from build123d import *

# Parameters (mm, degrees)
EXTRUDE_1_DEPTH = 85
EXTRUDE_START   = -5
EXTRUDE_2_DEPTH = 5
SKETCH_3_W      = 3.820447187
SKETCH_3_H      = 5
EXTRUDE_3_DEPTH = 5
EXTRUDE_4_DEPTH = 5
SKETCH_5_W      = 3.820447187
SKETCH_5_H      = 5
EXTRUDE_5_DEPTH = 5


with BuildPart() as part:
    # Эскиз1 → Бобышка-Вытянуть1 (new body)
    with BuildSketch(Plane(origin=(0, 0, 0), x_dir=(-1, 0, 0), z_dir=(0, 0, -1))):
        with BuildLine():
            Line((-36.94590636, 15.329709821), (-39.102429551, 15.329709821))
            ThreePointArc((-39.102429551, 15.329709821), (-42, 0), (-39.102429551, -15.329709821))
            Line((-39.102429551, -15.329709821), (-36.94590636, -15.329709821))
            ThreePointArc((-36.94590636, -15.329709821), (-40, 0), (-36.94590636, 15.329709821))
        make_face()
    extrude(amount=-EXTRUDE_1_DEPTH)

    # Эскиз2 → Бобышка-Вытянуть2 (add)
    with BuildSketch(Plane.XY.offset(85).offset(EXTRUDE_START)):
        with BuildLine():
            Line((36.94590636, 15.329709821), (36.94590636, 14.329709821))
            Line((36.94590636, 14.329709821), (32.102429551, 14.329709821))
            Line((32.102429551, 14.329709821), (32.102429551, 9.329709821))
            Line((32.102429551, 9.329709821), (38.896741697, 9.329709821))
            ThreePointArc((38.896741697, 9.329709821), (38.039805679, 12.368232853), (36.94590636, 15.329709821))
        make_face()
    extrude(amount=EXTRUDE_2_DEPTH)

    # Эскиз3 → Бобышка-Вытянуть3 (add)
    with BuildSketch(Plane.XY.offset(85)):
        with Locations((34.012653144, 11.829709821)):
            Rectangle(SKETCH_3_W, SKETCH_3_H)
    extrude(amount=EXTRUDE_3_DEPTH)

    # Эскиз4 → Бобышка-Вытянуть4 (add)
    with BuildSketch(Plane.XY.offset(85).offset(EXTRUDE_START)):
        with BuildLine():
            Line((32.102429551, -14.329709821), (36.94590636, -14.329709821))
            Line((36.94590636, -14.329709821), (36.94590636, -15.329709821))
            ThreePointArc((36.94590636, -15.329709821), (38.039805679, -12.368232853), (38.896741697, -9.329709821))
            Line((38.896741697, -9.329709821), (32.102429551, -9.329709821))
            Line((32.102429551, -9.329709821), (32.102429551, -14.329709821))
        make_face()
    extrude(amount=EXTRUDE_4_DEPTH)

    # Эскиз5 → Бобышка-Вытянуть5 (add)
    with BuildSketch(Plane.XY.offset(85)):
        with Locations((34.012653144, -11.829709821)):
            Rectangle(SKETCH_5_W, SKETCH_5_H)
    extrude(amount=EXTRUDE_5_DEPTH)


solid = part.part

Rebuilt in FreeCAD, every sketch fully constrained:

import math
import FreeCAD as App
import Part
import Sketcher

V = App.Vector
Q = App.Units.Quantity

doc = App.newDocument("Part")
body = doc.addObject("PartDesign::Body", "Body")

# Sketch on XY plane
sketch1 = doc.addObject("Sketcher::SketchObject", "Sketch")
body.addObject(sketch1)
sketch1.AttachmentSupport = (doc.XY_Plane, [""])
sketch1.MapMode = "FlatFace"
sketch1.addGeometry(Part.LineSegment(V(36.945906, 15.32971, 0), V(39.10243, 15.32971, 0)), False)
sketch1.addGeometry(Part.ArcOfCircle(Part.Circle(V(0, 0, 0), V(0, 0, 1), 42), math.radians(-21.407158), math.radians(21.407158)), False)
sketch1.addGeometry(Part.LineSegment(V(39.10243, -15.32971, 0), V(36.945906, -15.32971, 0)), False)
sketch1.addGeometry(Part.ArcOfCircle(Part.Circle(V(0, 0, 0), V(0, 0, 1), 40), math.radians(-22.534691), math.radians(22.534691)), False)
sketch1.addConstraint(Sketcher.Constraint("Coincident", 0, 2, 1, 2))
sketch1.addConstraint(Sketcher.Constraint("Coincident", 1, 1, 2, 1))
sketch1.addConstraint(Sketcher.Constraint("Coincident", 2, 2, 3, 1))
sketch1.addConstraint(Sketcher.Constraint("Coincident", 3, 2, 0, 1))
sketch1.addConstraint(Sketcher.Constraint("Horizontal", 0))
sketch1.addConstraint(Sketcher.Constraint("Horizontal", 2))
sketch1.addConstraint(Sketcher.Constraint("Coincident", 1, 3, -1, 1))
sketch1.addConstraint(Sketcher.Constraint("Coincident", 3, 3, -1, 1))
sketch1.addConstraint(Sketcher.Constraint("Vertical", 0, 2, 1, 1))
sketch1.addConstraint(Sketcher.Constraint("Radius", 1, Q("42 mm")))
sketch1.addConstraint(Sketcher.Constraint("Radius", 3, Q("40 mm")))
sketch1.addConstraint(Sketcher.Constraint("DistanceX", 0, 1, 0, 2, Q("2.156523 mm")))
pad1 = doc.addObject("PartDesign::Pad", "Pad")
body.addObject(pad1)
pad1.Profile = sketch1
pad1.Length = 85

# Sketch on XY plane
sketch2 = doc.addObject("Sketcher::SketchObject", "Sketch001")
body.addObject(sketch2)
sketch2.AttachmentSupport = (doc.XY_Plane, [""])
sketch2.MapMode = "FlatFace"
sketch2.AttachmentOffset = App.Placement(V(0, 0, 80), App.Rotation())
sketch2.addGeometry(Part.LineSegment(V(36.945906, 15.32971, 0), V(36.945906, 14.32971, 0)), False)
sketch2.addGeometry(Part.LineSegment(V(36.945906, 14.32971, 0), V(32.10243, 14.32971, 0)), False)
sketch2.addGeometry(Part.LineSegment(V(32.10243, 14.32971, 0), V(32.10243, 9.32971, 0)), False)
sketch2.addGeometry(Part.LineSegment(V(32.10243, 9.32971, 0), V(38.896742, 9.32971, 0)), False)
sketch2.addGeometry(Part.ArcOfCircle(Part.Circle(V(0, 0, 0), V(0, 0, 1), 40), math.radians(13.488061), math.radians(22.534691)), False)
sketch2.addConstraint(Sketcher.Constraint("Coincident", 0, 2, 1, 1))
sketch2.addConstraint(Sketcher.Constraint("Coincident", 1, 2, 2, 1))
sketch2.addConstraint(Sketcher.Constraint("Coincident", 2, 2, 3, 1))
sketch2.addConstraint(Sketcher.Constraint("Coincident", 3, 2, 4, 1))
sketch2.addConstraint(Sketcher.Constraint("Coincident", 4, 2, 0, 1))
sketch2.addConstraint(Sketcher.Constraint("Vertical", 0))
sketch2.addConstraint(Sketcher.Constraint("Horizontal", 1))
sketch2.addConstraint(Sketcher.Constraint("Vertical", 2))
sketch2.addConstraint(Sketcher.Constraint("Horizontal", 3))
sketch2.addConstraint(Sketcher.Constraint("Coincident", 4, 3, -1, 1))
sketch2.addConstraint(Sketcher.Constraint("Radius", 4, Q("40 mm")))
sketch2.addConstraint(Sketcher.Constraint("DistanceY", 0, 2, 0, 1, Q("1 mm")))
sketch2.addConstraint(Sketcher.Constraint("DistanceY", 2, 2, 2, 1, Q("5 mm")))
sketch2.addConstraint(Sketcher.Constraint("DistanceX", 1, 2, 1, 1, Q("4.843477 mm")))
sketch2.addConstraint(Sketcher.Constraint("DistanceX", 3, 1, 3, 2, Q("6.794312 mm")))
pad2 = doc.addObject("PartDesign::Pad", "Pad001")
body.addObject(pad2)
pad2.Profile = sketch2
pad2.Length = 5

# Sketch on XY plane
sketch3 = doc.addObject("Sketcher::SketchObject", "Sketch002")
body.addObject(sketch3)
sketch3.AttachmentSupport = (doc.XY_Plane, [""])
sketch3.MapMode = "FlatFace"
sketch3.AttachmentOffset = App.Placement(V(0, 0, 85), App.Rotation())
sketch3.addGeometry(Part.LineSegment(V(32.10243, 14.32971, 0), V(32.10243, 9.32971, 0)), False)
sketch3.addGeometry(Part.LineSegment(V(32.10243, 9.32971, 0), V(35.922877, 9.32971, 0)), False)
sketch3.addGeometry(Part.LineSegment(V(35.922877, 9.32971, 0), V(35.922877, 14.32971, 0)), False)
sketch3.addGeometry(Part.LineSegment(V(35.922877, 14.32971, 0), V(32.10243, 14.32971, 0)), False)
sketch3.addConstraint(Sketcher.Constraint("Coincident", 0, 2, 1, 1))
sketch3.addConstraint(Sketcher.Constraint("Coincident", 1, 2, 2, 1))
sketch3.addConstraint(Sketcher.Constraint("Coincident", 2, 2, 3, 1))
sketch3.addConstraint(Sketcher.Constraint("Coincident", 3, 2, 0, 1))
sketch3.addConstraint(Sketcher.Constraint("Vertical", 0))
sketch3.addConstraint(Sketcher.Constraint("Horizontal", 1))
sketch3.addConstraint(Sketcher.Constraint("Vertical", 2))
sketch3.addConstraint(Sketcher.Constraint("Horizontal", 3))
sketch3.addConstraint(Sketcher.Constraint("DistanceY", 0, 2, 0, 1, Q("5 mm")))
sketch3.addConstraint(Sketcher.Constraint("DistanceX", 1, 1, 1, 2, Q("3.820447 mm")))
sketch3.addConstraint(Sketcher.Constraint("DistanceX", -1, 1, 0, 2, Q("32.10243 mm")))
sketch3.addConstraint(Sketcher.Constraint("DistanceY", -1, 1, 0, 2, Q("9.32971 mm")))
pad3 = doc.addObject("PartDesign::Pad", "Pad002")
body.addObject(pad3)
pad3.Profile = sketch3
pad3.Length = 5

# Sketch on XY plane
sketch4 = doc.addObject("Sketcher::SketchObject", "Sketch003")
body.addObject(sketch4)
sketch4.AttachmentSupport = (doc.XY_Plane, [""])
sketch4.MapMode = "FlatFace"
sketch4.AttachmentOffset = App.Placement(V(0, 0, 80), App.Rotation())
sketch4.addGeometry(Part.LineSegment(V(32.10243, -14.32971, 0), V(36.945906, -14.32971, 0)), False)
sketch4.addGeometry(Part.LineSegment(V(36.945906, -14.32971, 0), V(36.945906, -15.32971, 0)), False)
sketch4.addGeometry(Part.ArcOfCircle(Part.Circle(V(0, 0, 0), V(0, 0, 1), 40), math.radians(-22.534691), math.radians(-13.488061)), False)
sketch4.addGeometry(Part.LineSegment(V(38.896742, -9.32971, 0), V(32.10243, -9.32971, 0)), False)
sketch4.addGeometry(Part.LineSegment(V(32.10243, -9.32971, 0), V(32.10243, -14.32971, 0)), False)
sketch4.addConstraint(Sketcher.Constraint("Coincident", 0, 2, 1, 1))
sketch4.addConstraint(Sketcher.Constraint("Coincident", 1, 2, 2, 1))
sketch4.addConstraint(Sketcher.Constraint("Coincident", 2, 2, 3, 1))
sketch4.addConstraint(Sketcher.Constraint("Coincident", 3, 2, 4, 1))
sketch4.addConstraint(Sketcher.Constraint("Coincident", 4, 2, 0, 1))
sketch4.addConstraint(Sketcher.Constraint("Horizontal", 0))
sketch4.addConstraint(Sketcher.Constraint("Vertical", 1))
sketch4.addConstraint(Sketcher.Constraint("Horizontal", 3))
sketch4.addConstraint(Sketcher.Constraint("Vertical", 4))
sketch4.addConstraint(Sketcher.Constraint("Coincident", 2, 3, -1, 1))
sketch4.addConstraint(Sketcher.Constraint("Radius", 2, Q("40 mm")))
sketch4.addConstraint(Sketcher.Constraint("DistanceY", 1, 2, 1, 1, Q("1 mm")))
sketch4.addConstraint(Sketcher.Constraint("DistanceY", 4, 2, 4, 1, Q("5 mm")))
sketch4.addConstraint(Sketcher.Constraint("DistanceX", 0, 1, 0, 2, Q("4.843477 mm")))
sketch4.addConstraint(Sketcher.Constraint("DistanceX", 3, 2, 3, 1, Q("6.794312 mm")))
pad4 = doc.addObject("PartDesign::Pad", "Pad003")
body.addObject(pad4)
pad4.Profile = sketch4
pad4.Length = 5

# Sketch on XY plane
sketch5 = doc.addObject("Sketcher::SketchObject", "Sketch004")
body.addObject(sketch5)
sketch5.AttachmentSupport = (doc.XY_Plane, [""])
sketch5.MapMode = "FlatFace"
sketch5.AttachmentOffset = App.Placement(V(0, 0, 85), App.Rotation())
sketch5.addGeometry(Part.LineSegment(V(32.10243, -9.32971, 0), V(32.10243, -14.32971, 0)), False)
sketch5.addGeometry(Part.LineSegment(V(32.10243, -14.32971, 0), V(35.922877, -14.32971, 0)), False)
sketch5.addGeometry(Part.LineSegment(V(35.922877, -14.32971, 0), V(35.922877, -9.32971, 0)), False)
sketch5.addGeometry(Part.LineSegment(V(35.922877, -9.32971, 0), V(32.10243, -9.32971, 0)), False)
sketch5.addConstraint(Sketcher.Constraint("Coincident", 0, 2, 1, 1))
sketch5.addConstraint(Sketcher.Constraint("Coincident", 1, 2, 2, 1))
sketch5.addConstraint(Sketcher.Constraint("Coincident", 2, 2, 3, 1))
sketch5.addConstraint(Sketcher.Constraint("Coincident", 3, 2, 0, 1))
sketch5.addConstraint(Sketcher.Constraint("Vertical", 0))
sketch5.addConstraint(Sketcher.Constraint("Horizontal", 1))
sketch5.addConstraint(Sketcher.Constraint("Vertical", 2))
sketch5.addConstraint(Sketcher.Constraint("Horizontal", 3))
sketch5.addConstraint(Sketcher.Constraint("DistanceY", 0, 2, 0, 1, Q("5 mm")))
sketch5.addConstraint(Sketcher.Constraint("DistanceX", 1, 1, 1, 2, Q("3.820447 mm")))
sketch5.addConstraint(Sketcher.Constraint("DistanceX", -1, 1, 0, 2, Q("32.10243 mm")))
sketch5.addConstraint(Sketcher.Constraint("DistanceY", 0, 2, -1, 1, Q("14.32971 mm")))
pad5 = doc.addObject("PartDesign::Pad", "Pad004")
body.addObject(pad5)
pad5.Profile = sketch5
pad5.Length = 5

doc.recompute()
